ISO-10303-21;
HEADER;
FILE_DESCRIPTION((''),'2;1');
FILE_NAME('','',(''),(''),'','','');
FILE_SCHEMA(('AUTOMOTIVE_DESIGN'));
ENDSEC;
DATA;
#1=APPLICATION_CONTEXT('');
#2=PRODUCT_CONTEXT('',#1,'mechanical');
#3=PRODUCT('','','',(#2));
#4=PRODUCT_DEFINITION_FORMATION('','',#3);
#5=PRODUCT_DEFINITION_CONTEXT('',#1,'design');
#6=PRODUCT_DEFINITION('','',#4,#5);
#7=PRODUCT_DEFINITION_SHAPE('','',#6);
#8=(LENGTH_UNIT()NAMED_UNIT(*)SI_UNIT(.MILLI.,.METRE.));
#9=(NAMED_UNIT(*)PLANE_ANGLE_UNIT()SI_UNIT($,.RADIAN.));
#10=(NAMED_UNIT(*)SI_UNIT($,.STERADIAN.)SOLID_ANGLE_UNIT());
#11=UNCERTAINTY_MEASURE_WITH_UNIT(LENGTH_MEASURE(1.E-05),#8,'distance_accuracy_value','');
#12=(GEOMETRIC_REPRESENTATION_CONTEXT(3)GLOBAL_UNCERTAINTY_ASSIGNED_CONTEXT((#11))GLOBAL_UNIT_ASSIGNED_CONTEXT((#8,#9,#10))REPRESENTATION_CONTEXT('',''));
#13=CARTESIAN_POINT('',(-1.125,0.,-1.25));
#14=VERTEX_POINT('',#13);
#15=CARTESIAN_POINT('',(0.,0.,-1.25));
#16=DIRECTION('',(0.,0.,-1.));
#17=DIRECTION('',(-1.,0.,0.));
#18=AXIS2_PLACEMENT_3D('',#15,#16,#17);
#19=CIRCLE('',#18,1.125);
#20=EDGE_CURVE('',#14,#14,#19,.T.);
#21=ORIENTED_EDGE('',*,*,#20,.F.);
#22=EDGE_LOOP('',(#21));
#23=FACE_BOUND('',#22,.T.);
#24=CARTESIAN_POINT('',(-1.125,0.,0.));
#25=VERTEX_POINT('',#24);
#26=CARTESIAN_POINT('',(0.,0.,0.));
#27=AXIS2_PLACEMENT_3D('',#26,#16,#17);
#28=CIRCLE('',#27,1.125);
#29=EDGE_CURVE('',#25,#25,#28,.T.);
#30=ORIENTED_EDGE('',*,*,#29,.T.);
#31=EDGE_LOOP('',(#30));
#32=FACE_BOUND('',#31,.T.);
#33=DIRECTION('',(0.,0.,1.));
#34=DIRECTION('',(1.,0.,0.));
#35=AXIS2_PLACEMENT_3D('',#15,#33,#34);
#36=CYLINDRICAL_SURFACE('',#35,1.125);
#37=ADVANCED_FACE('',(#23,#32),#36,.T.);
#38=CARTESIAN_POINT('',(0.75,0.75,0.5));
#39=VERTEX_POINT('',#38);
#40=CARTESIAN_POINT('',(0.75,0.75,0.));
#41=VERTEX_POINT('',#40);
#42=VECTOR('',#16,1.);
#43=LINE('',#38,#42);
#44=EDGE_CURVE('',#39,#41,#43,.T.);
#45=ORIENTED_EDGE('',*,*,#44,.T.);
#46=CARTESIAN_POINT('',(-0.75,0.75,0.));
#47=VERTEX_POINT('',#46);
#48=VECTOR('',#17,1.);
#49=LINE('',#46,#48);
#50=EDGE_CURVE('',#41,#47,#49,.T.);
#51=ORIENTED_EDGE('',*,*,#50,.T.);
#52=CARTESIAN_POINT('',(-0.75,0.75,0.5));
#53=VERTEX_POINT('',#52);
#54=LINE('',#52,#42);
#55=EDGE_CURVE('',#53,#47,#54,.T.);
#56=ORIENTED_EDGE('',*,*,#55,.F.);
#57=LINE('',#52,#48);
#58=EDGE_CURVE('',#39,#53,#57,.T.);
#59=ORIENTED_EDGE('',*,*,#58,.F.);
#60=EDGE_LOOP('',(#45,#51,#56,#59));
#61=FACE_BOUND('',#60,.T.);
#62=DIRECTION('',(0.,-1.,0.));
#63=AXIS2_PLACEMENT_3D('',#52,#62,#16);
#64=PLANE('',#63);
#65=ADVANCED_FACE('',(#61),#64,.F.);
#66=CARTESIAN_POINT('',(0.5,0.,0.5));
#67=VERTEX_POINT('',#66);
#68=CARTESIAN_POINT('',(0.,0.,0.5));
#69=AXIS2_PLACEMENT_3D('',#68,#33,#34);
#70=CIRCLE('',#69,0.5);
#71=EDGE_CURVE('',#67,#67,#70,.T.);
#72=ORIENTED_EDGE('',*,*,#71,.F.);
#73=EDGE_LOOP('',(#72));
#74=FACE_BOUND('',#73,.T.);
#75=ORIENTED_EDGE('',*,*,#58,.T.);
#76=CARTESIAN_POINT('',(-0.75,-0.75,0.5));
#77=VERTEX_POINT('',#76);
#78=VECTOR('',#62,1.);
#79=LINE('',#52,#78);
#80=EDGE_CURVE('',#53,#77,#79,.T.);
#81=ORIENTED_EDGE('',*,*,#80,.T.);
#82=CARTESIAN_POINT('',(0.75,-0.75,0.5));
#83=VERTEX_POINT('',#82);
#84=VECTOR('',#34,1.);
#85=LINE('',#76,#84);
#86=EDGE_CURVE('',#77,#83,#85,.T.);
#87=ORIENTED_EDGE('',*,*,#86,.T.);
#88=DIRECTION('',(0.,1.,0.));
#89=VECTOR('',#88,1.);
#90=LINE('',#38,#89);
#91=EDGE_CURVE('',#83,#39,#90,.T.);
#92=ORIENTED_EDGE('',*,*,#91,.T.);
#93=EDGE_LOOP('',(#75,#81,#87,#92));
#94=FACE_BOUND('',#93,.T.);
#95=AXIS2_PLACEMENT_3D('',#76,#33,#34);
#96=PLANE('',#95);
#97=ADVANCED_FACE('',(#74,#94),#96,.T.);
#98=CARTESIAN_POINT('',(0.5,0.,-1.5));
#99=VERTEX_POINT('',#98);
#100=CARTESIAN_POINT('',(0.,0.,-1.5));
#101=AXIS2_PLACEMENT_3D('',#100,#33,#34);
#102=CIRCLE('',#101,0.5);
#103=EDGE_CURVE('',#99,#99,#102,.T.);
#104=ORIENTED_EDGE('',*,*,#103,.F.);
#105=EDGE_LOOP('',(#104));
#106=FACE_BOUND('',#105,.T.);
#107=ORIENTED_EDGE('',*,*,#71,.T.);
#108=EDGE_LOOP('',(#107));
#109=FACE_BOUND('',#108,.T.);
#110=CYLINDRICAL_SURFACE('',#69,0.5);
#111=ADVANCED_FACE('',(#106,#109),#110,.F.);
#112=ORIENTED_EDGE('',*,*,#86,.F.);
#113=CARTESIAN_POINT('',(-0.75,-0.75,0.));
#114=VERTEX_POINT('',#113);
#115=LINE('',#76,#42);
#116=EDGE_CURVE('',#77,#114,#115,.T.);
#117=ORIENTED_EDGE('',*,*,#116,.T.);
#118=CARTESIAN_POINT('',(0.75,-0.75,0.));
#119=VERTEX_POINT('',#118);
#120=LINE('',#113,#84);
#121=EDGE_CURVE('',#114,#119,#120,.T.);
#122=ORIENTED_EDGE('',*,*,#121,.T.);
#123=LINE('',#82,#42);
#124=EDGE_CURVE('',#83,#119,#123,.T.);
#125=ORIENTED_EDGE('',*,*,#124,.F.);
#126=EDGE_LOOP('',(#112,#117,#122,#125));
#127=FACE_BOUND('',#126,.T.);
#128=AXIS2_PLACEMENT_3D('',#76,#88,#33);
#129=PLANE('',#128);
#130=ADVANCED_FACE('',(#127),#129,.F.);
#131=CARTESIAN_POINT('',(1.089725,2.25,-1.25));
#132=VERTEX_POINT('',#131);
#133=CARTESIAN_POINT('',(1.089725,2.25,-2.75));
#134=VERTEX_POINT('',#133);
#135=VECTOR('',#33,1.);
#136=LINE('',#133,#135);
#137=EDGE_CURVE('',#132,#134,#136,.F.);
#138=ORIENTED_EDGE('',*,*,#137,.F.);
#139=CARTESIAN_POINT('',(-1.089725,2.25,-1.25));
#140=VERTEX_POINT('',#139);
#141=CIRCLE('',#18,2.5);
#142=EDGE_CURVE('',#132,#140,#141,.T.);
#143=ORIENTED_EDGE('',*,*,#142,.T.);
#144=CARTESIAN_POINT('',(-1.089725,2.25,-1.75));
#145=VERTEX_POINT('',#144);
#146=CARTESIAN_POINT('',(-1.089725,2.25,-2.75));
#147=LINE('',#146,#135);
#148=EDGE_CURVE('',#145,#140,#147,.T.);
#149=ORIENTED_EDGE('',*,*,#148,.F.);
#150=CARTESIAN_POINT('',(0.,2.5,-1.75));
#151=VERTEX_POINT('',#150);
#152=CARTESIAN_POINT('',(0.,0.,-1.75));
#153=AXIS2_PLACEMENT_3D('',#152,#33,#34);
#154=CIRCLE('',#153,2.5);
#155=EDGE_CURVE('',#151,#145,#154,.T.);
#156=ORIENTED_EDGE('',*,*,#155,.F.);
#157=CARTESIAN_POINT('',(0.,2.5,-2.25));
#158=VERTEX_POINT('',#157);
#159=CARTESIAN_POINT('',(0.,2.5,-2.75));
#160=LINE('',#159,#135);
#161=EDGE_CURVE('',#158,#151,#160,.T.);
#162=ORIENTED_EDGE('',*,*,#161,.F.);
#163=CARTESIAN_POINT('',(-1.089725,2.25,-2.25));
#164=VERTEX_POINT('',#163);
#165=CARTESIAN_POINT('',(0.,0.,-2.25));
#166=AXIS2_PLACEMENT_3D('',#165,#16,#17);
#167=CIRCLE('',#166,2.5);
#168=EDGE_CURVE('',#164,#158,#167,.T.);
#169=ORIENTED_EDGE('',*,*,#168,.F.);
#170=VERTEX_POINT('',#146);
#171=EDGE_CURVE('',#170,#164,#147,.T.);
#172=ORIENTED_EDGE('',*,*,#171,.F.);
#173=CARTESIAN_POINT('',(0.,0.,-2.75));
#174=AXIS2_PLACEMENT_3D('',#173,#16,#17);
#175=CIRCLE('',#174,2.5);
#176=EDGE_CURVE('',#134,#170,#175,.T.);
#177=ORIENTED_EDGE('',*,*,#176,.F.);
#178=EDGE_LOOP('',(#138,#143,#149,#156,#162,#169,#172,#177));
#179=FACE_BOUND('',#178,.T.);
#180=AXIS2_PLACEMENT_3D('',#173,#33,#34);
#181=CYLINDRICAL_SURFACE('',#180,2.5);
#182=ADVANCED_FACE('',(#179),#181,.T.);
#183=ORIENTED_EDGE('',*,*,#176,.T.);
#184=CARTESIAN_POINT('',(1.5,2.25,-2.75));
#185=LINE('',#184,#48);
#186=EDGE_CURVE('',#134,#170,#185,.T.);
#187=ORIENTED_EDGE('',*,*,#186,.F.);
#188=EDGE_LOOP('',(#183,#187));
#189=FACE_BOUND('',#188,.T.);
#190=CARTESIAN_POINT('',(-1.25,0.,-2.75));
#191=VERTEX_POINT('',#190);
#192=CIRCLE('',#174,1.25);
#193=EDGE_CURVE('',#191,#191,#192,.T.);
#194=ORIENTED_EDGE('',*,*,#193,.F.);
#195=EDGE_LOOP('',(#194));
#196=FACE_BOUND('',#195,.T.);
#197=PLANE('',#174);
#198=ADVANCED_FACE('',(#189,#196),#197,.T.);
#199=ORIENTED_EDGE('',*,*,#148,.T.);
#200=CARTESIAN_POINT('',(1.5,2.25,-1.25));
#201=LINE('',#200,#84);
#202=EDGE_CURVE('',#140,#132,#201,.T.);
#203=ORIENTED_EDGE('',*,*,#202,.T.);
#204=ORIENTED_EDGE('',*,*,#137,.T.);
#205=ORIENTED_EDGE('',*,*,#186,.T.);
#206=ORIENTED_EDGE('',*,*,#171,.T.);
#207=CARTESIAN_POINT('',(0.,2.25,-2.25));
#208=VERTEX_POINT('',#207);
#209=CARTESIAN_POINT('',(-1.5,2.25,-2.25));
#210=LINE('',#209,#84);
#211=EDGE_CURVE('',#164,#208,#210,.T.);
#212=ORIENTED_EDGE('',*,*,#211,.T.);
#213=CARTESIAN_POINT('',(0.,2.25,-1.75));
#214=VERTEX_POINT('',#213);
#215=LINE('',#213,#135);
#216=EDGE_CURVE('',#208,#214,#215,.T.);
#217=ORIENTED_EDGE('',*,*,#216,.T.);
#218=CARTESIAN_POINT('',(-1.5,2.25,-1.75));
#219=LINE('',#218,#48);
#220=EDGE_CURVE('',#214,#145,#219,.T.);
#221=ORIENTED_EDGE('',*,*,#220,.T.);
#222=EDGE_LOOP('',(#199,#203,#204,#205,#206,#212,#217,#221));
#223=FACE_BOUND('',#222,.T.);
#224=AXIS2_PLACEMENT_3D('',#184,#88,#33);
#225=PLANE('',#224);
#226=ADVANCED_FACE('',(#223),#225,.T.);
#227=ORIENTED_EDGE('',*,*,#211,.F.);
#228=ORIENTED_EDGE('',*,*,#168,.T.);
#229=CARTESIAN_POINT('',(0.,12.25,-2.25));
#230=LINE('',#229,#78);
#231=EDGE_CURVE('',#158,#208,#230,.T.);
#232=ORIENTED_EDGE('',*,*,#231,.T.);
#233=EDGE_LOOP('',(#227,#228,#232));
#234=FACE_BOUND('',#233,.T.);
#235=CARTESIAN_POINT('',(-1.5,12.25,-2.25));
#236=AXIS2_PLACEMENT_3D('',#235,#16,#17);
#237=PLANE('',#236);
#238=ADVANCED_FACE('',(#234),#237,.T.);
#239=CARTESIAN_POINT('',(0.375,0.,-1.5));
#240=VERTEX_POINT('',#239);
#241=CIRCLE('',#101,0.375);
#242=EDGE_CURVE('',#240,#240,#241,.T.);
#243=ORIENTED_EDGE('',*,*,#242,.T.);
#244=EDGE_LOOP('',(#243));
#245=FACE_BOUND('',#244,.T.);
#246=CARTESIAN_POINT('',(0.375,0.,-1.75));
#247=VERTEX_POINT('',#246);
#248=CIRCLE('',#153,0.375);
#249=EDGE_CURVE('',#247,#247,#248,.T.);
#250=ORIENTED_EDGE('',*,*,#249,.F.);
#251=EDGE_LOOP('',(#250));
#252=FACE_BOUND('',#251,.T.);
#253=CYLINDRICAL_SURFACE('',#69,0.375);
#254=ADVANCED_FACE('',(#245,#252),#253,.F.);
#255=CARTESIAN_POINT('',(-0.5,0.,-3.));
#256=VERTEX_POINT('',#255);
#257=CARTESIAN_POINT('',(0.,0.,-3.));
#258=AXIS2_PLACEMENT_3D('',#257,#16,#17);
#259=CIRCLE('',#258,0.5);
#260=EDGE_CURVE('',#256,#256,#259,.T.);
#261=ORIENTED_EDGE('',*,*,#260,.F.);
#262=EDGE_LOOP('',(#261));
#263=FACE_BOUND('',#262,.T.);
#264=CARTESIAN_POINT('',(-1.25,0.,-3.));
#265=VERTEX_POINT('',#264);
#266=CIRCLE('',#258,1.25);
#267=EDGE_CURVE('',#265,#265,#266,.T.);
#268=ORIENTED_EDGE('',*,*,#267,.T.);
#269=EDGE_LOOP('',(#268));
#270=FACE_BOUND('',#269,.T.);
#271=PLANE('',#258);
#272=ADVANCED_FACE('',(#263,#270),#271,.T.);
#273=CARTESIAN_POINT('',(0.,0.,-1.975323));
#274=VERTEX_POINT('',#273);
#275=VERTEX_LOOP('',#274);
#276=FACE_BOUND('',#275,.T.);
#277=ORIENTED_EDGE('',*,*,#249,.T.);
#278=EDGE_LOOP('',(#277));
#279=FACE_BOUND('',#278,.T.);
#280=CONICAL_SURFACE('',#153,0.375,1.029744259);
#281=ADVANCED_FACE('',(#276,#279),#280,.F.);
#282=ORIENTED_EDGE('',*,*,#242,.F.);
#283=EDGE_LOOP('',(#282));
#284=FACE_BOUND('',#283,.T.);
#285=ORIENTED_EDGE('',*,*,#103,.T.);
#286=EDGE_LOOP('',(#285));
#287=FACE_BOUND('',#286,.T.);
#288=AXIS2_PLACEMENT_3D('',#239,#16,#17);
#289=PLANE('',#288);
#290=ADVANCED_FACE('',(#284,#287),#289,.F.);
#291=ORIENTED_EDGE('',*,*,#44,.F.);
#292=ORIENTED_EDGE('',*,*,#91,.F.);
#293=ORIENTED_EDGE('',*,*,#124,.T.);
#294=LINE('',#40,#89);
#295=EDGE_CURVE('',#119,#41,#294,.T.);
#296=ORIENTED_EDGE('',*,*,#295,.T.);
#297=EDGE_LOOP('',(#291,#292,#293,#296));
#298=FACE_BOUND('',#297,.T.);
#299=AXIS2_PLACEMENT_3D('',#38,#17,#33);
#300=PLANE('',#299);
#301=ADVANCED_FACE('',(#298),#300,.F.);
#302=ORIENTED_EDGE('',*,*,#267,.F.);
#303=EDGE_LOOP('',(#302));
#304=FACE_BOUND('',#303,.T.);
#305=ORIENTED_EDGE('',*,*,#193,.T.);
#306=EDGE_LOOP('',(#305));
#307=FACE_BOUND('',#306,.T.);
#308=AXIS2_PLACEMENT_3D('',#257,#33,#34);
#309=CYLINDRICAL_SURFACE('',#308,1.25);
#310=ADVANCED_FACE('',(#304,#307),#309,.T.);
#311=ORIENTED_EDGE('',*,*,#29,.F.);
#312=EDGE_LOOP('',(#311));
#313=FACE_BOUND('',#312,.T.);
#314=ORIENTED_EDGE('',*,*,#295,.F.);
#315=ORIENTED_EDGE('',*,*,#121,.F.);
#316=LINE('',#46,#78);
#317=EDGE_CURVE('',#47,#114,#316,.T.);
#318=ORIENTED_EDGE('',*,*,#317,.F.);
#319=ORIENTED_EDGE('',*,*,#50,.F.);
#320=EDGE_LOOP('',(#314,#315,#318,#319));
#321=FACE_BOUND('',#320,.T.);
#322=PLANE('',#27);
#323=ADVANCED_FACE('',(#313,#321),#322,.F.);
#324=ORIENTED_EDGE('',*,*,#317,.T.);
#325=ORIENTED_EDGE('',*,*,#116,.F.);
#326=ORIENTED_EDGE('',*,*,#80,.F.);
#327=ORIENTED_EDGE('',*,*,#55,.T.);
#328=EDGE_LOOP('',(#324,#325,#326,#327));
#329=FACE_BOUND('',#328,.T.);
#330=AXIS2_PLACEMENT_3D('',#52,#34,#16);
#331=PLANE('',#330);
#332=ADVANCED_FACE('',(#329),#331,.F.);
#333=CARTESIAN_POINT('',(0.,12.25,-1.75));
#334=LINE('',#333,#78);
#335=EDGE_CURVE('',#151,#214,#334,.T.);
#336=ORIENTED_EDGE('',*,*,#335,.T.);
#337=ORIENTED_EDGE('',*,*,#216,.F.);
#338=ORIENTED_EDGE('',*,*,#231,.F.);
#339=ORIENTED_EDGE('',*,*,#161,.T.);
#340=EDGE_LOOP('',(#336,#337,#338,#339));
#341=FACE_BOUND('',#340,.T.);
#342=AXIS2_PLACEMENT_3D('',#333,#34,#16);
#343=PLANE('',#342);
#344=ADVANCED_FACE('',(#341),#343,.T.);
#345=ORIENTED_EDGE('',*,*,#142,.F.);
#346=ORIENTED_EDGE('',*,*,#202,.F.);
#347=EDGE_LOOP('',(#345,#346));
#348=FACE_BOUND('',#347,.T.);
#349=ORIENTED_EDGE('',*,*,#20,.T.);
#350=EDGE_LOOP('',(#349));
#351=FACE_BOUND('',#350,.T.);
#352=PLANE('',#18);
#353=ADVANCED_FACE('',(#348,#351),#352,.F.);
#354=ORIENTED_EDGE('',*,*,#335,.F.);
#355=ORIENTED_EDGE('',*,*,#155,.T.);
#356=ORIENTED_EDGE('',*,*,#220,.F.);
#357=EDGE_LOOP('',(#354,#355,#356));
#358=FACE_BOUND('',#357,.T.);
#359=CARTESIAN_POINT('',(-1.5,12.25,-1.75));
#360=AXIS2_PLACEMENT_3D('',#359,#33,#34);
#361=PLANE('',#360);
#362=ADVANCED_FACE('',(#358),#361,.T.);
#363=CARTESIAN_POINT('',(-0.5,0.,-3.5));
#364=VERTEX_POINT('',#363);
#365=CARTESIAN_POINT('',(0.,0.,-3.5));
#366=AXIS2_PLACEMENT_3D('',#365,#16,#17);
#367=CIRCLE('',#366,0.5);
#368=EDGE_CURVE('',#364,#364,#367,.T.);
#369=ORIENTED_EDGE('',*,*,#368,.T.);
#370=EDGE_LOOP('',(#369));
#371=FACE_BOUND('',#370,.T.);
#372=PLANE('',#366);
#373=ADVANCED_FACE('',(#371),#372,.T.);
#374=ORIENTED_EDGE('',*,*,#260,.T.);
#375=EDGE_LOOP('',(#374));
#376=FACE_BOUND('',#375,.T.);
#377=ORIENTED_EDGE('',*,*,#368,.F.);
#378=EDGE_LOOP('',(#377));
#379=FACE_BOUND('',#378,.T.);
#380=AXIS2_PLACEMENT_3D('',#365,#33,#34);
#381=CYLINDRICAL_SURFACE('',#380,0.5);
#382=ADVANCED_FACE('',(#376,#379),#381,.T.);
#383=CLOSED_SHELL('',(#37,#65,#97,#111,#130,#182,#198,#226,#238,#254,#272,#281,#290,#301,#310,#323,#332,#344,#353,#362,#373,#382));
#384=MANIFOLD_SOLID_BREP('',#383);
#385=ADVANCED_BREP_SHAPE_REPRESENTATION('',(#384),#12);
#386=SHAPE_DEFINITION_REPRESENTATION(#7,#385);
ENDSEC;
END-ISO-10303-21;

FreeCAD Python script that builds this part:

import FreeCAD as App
import Part
import Sketcher

doc = App.newDocument("Part")
body = doc.addObject("PartDesign::Body", "Body")

sketch1 = body.newObject("Sketcher::SketchObject", "Sketch")
sketch1.AttachmentSupport = (doc.getObject("XY_Plane"), [""])
sketch1.MapMode = "FlatFace"
sketch1.addGeometry([
    Part.LineSegment(App.Vector(-0.75, 0.75, 0), App.Vector(-0.75, -0.75, 0)),
    Part.LineSegment(App.Vector(-0.75, -0.75, 0), App.Vector(0.75, -0.75, 0)),
    Part.LineSegment(App.Vector(0.75, -0.75, 0), App.Vector(0.75, 0.75, 0)),
    Part.LineSegment(App.Vector(0.75, 0.75, 0), App.Vector(-0.75, 0.75, 0)),
], False)
sketch1.addConstraint([
    Sketcher.Constraint("Coincident", 0, 2, 1, 1),
    Sketcher.Constraint("Coincident", 1, 2, 2, 1),
    Sketcher.Constraint("Coincident", 2, 2, 3, 1),
    Sketcher.Constraint("Coincident", 3, 2, 0, 1),
    Sketcher.Constraint("Vertical", 0),
    Sketcher.Constraint("Horizontal", 1),
    Sketcher.Constraint("Vertical", 2),
    Sketcher.Constraint("Horizontal", 3),
    Sketcher.Constraint("Symmetric", 0, 2, 2, 2, -1, 1),
    Sketcher.Constraint("Equal", 3, 0),
    Sketcher.Constraint("DistanceX", 1, 1, 1, 2, 1.5),
])
pad1 = body.newObject("PartDesign::Pad", "Pad")
pad1.Profile = sketch1
pad1.Length = 0.5

sketch2 = body.newObject("Sketcher::SketchObject", "Sketch001")
sketch2.AttachmentSupport = (doc.getObject("XY_Plane"), [""])
sketch2.MapMode = "FlatFace"
sketch2.addGeometry(Part.Circle(App.Vector(0, 0, 0), App.Vector(0, 0, 1), 1.125), False)
sketch2.addConstraint([
    Sketcher.Constraint("Coincident", 0, 3, -1, 1),
    Sketcher.Constraint("Diameter", 0, 2.25),
])
pad2 = body.newObject("PartDesign::Pad", "Pad001")
pad2.Profile = sketch2
pad2.Length = 1.25
pad2.Reversed = True

sketch3 = body.newObject("Sketcher::SketchObject", "Sketch002")
sketch3.AttachmentSupport = (doc.getObject("XY_Plane"), [""])
sketch3.MapMode = "FlatFace"
sketch3.AttachmentOffset = App.Placement(App.Vector(0, 0, -1.25), App.Rotation())
sketch3.addGeometry(Part.Circle(App.Vector(0, 0, 0), App.Vector(0, 0, 1), 2.5), False)
sketch3.addConstraint([
    Sketcher.Constraint("Coincident", 0, 3, -1, 1),
    Sketcher.Constraint("Diameter", 0, 5.0),
])
pad3 = body.newObject("PartDesign::Pad", "Pad002")
pad3.Profile = sketch3
pad3.Length = 1.5
pad3.Reversed = True

sketch4 = body.newObject("Sketcher::SketchObject", "Sketch003")
sketch4.AttachmentSupport = (doc.getObject("XY_Plane"), [""])
sketch4.MapMode = "FlatFace"
sketch4.AttachmentOffset = App.Placement(App.Vector(0, 0, -2.75), App.Rotation())
sketch4.addGeometry(Part.Circle(App.Vector(0, 0, 0), App.Vector(0, 0, 1), 1.25), False)
sketch4.addConstraint([
    Sketcher.Constraint("Coincident", 0, 3, -1, 1),
    Sketcher.Constraint("Diameter", 0, 2.5),
])
pad4 = body.newObject("PartDesign::Pad", "Pad003")
pad4.Profile = sketch4
pad4.Length = 0.25
pad4.Reversed = True

sketch5 = body.newObject("Sketcher::SketchObject", "Sketch004")
sketch5.AttachmentSupport = (doc.getObject("XY_Plane"), [""])
sketch5.MapMode = "FlatFace"
sketch5.AttachmentOffset = App.Placement(App.Vector(0, 0, -3), App.Rotation())
sketch5.addGeometry(Part.Circle(App.Vector(0, 0, 0), App.Vector(0, 0, 1), 0.5), False)
sketch5.addConstraint([
    Sketcher.Constraint("Coincident", 0, 3, -1, 1),
    Sketcher.Constraint("Diameter", 0, 1.0),
])
pad5 = body.newObject("PartDesign::Pad", "Pad004")
pad5.Profile = sketch5
pad5.Length = 0.5
pad5.Reversed = True

sketch6 = body.newObject("Sketcher::SketchObject", "Sketch005")
sketch6.AttachmentSupport = (doc.getObject("XZ_Plane"), [""])
sketch6.MapMode = "FlatFace"
sketch6.AttachmentOffset = App.Placement(App.Vector(0, 0, -2.25), App.Rotation())
sketch6.addGeometry([
    Part.LineSegment(App.Vector(-1.5, -1.25, 0), App.Vector(1.5, -1.25, 0)),
    Part.LineSegment(App.Vector(1.5, -1.25, 0), App.Vector(1.5, -2.75, 0)),
    Part.LineSegment(App.Vector(1.5, -2.75, 0), App.Vector(-1.5, -2.75, 0)),
    Part.LineSegment(App.Vector(-1.5, -2.75, 0), App.Vector(-1.5, -2.25, 0)),
    Part.LineSegment(App.Vector(-1.5, -2.25, 0), App.Vector(0, -2.25, 0)),
    Part.LineSegment(App.Vector(0, -2.25, 0), App.Vector(0, -1.75, 0)),
    Part.LineSegment(App.Vector(0, -1.75, 0), App.Vector(-1.5, -1.75, 0)),
    Part.LineSegment(App.Vector(-1.5, -1.75, 0), App.Vector(-1.5, -1.25, 0)),
], False)
sketch6.addConstraint([
    Sketcher.Constraint("Coincident", 0, 2, 1, 1),
    Sketcher.Constraint("Coincident", 1, 2, 2, 1),
    Sketcher.Constraint("Coincident", 2, 2, 3, 1),
    Sketcher.Constraint("Coincident", 3, 2, 4, 1),
    Sketcher.Constraint("Coincident", 4, 2, 5, 1),
    Sketcher.Constraint("Coincident", 5, 2, 6, 1),
    Sketcher.Constraint("Coincident", 6, 2, 7, 1),
    Sketcher.Constraint("Coincident", 7, 2, 0, 1),
    Sketcher.Constraint("Horizontal", 0),
    Sketcher.Constraint("Vertical", 1),
    Sketcher.Constraint("Horizontal", 2),
    Sketcher.Constraint("Vertical", 3),
    Sketcher.Constraint("Horizontal", 4),
    Sketcher.Constraint("Vertical", 5),
    Sketcher.Constraint("Horizontal", 6),
    Sketcher.Constraint("Vertical", 7),
    Sketcher.Constraint("PointOnObject", 4, 2, -2),
    Sketcher.Constraint("Vertical", 3, 2, 6, 2),
    Sketcher.Constraint("Equal", 6, 1),
    Sketcher.Constraint("Equal", 3, 5),
    Sketcher.Constraint("Equal", 5, 7),
    Sketcher.Constraint("DistanceX", 0, 1, 0, 2, 3.0),
    Sketcher.Constraint("DistanceX", 4, 1, 4, 2, 1.5),
    Sketcher.Constraint("DistanceY", 0, 2, -1, 1, 1.25),
])
pocket1 = body.newObject("PartDesign::Pocket", "Pocket")
pocket1.Profile = sketch6
pocket1.Length = 10

sketch7 = body.newObject("Sketcher::SketchObject", "Sketch006")
sketch7.AttachmentSupport = (doc.getObject("XY_Plane"), [""])
sketch7.MapMode = "FlatFace"
sketch7.AttachmentOffset = App.Placement(App.Vector(0, 0, 0.5), App.Rotation())
sketch7.addGeometry(Part.Circle(App.Vector(0, 0, 0), App.Vector(0, 0, 1), 0.375), False)
sketch7.addConstraint([
    Sketcher.Constraint("Coincident", 0, 3, -1, 1),
    Sketcher.Constraint("Diameter", 0, 0.75),
])
doc.recompute()
hole = body.newObject("PartDesign::Hole", "Hole")
hole.Profile = sketch7
hole.ThreadType = "None"
hole.Diameter = 0.75
hole.DepthType = "Dimension"
hole.Depth = 2.25
hole.DrillPoint = "Angled"
hole.DrillPointAngle = 118
hole.HoleCutType = "Counterbore"
hole.HoleCutDiameter = 1
hole.HoleCutDepth = 2

doc.recompute()
